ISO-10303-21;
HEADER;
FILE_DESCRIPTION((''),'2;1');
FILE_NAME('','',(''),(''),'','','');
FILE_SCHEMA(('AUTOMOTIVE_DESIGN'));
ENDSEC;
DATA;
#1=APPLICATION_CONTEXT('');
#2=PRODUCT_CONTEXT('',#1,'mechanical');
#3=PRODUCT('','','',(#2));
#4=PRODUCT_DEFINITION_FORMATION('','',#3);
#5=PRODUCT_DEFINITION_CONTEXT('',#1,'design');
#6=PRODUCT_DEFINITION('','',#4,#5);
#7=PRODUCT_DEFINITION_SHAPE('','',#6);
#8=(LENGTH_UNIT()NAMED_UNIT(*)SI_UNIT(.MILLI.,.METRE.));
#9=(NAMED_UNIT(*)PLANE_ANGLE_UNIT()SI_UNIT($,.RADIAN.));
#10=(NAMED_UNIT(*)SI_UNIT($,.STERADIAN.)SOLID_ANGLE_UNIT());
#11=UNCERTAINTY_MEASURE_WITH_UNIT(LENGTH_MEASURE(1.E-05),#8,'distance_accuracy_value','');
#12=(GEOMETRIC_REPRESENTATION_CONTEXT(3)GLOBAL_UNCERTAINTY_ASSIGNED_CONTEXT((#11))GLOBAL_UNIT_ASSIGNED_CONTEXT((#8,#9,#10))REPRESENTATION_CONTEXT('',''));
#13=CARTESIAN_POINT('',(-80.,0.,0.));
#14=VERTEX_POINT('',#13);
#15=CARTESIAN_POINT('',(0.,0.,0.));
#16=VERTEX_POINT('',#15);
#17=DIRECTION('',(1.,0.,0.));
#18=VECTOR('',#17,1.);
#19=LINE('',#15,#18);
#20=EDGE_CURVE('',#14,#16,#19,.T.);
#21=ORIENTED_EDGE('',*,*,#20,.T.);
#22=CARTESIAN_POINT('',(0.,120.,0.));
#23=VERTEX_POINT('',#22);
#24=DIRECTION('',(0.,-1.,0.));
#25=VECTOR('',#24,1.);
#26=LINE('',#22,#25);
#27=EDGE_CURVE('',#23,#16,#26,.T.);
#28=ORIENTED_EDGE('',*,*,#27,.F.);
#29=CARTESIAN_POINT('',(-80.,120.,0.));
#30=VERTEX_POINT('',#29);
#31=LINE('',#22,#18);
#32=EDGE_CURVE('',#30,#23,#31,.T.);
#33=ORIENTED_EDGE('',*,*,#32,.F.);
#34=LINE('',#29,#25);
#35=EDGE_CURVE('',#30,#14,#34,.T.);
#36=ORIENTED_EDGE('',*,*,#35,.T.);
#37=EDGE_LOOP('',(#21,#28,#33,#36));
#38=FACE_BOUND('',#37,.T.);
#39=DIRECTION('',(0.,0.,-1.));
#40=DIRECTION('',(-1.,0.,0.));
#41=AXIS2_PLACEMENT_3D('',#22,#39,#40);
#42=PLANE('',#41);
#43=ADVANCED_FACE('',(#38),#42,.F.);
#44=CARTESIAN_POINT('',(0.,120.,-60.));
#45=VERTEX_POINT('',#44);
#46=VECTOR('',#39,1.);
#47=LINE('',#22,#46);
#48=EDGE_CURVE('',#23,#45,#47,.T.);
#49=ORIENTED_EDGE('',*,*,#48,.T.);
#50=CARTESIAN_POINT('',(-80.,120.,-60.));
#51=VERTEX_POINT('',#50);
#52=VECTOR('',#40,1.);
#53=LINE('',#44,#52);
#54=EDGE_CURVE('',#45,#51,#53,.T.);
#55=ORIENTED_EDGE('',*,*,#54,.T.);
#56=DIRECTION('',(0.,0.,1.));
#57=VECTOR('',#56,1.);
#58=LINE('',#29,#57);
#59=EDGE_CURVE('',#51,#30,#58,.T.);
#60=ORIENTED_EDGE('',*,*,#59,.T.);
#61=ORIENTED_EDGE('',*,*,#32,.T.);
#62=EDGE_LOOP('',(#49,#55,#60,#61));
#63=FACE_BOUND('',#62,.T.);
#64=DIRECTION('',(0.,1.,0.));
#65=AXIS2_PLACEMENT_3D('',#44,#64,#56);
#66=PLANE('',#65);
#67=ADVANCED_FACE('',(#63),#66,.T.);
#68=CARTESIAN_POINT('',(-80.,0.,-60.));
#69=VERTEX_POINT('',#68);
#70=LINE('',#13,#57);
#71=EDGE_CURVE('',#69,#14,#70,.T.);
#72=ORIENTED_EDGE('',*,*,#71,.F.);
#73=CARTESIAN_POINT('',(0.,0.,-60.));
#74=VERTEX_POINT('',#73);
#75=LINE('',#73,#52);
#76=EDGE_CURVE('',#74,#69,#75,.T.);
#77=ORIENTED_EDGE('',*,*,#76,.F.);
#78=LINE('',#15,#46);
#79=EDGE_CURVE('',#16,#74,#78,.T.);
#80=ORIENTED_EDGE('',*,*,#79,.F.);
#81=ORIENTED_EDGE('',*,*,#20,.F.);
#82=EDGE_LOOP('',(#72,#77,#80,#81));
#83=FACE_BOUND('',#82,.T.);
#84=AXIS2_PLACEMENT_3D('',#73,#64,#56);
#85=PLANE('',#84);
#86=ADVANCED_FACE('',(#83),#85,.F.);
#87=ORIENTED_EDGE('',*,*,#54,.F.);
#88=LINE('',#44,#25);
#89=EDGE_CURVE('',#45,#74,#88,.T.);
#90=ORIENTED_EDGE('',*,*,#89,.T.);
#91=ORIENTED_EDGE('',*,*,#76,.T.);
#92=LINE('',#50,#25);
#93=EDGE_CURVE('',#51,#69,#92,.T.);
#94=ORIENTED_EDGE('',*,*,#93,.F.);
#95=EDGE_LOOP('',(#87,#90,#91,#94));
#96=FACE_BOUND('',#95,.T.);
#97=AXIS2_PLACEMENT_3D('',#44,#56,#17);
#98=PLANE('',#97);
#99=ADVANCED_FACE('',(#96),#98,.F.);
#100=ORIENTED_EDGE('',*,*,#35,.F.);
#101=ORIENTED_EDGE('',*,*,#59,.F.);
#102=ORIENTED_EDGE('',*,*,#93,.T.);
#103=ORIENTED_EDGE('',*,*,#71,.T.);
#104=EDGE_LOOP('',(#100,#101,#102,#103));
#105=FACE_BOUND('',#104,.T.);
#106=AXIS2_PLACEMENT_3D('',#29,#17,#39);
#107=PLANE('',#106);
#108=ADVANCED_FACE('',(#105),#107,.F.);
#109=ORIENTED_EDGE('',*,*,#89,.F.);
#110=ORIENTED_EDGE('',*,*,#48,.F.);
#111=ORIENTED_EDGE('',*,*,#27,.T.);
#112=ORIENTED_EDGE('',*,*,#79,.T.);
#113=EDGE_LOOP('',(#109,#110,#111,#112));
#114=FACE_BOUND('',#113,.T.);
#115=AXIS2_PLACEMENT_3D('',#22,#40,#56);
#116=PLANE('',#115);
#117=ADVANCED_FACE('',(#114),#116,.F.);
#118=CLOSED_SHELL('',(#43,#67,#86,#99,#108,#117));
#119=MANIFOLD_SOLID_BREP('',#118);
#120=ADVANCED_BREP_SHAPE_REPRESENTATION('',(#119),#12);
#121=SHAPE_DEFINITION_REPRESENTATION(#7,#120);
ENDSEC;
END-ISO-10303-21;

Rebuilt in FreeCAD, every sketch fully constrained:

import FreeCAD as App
import Part
import Sketcher
Q = App.Units.Quantity


def add_polygon(sketch, points):
    """Adds a closed chain of lines whose ends are joined by coincident constraints."""
    first, n = sketch.GeometryCount, len(points)
    for a, b in zip(points, points[1:] + points[:1]):
        sketch.addGeometry(Part.LineSegment(App.Vector(*a, 0), App.Vector(*b, 0)), False)
    for i in range(n):
        sketch.addConstraint(Sketcher.Constraint("Coincident", first + i, 2, first + (i + 1) % n, 1))

doc = App.newDocument("Part")
body = doc.addObject("PartDesign::Body", "Body")

sketch1 = body.newObject("Sketcher::SketchObject", "Sketch")
sketch1.AttachmentSupport = (doc.getObject("XZ_Plane"), [""])
sketch1.MapMode = "FlatFace"
add_polygon(sketch1, [(-80, -60), (-80, 0), (0, 0), (0, -60)])
sketch1.addConstraint([
    Sketcher.Constraint("Vertical", 0),
    Sketcher.Constraint("Horizontal", 1),
    Sketcher.Constraint("Vertical", 2),
    Sketcher.Constraint("Horizontal", 3),
    Sketcher.Constraint("Coincident", 1, 2, -1, 1),
    Sketcher.Constraint("DistanceX", 1, 1, 1, 2, Q("80 mm")),
    Sketcher.Constraint("DistanceY", 0, 1, 0, 2, Q("60 mm")),
])
pad1 = body.newObject("PartDesign::Pad", "Pad")
pad1.Profile = sketch1
pad1.Length = 120
pad1.Reversed = True

doc.recompute()
